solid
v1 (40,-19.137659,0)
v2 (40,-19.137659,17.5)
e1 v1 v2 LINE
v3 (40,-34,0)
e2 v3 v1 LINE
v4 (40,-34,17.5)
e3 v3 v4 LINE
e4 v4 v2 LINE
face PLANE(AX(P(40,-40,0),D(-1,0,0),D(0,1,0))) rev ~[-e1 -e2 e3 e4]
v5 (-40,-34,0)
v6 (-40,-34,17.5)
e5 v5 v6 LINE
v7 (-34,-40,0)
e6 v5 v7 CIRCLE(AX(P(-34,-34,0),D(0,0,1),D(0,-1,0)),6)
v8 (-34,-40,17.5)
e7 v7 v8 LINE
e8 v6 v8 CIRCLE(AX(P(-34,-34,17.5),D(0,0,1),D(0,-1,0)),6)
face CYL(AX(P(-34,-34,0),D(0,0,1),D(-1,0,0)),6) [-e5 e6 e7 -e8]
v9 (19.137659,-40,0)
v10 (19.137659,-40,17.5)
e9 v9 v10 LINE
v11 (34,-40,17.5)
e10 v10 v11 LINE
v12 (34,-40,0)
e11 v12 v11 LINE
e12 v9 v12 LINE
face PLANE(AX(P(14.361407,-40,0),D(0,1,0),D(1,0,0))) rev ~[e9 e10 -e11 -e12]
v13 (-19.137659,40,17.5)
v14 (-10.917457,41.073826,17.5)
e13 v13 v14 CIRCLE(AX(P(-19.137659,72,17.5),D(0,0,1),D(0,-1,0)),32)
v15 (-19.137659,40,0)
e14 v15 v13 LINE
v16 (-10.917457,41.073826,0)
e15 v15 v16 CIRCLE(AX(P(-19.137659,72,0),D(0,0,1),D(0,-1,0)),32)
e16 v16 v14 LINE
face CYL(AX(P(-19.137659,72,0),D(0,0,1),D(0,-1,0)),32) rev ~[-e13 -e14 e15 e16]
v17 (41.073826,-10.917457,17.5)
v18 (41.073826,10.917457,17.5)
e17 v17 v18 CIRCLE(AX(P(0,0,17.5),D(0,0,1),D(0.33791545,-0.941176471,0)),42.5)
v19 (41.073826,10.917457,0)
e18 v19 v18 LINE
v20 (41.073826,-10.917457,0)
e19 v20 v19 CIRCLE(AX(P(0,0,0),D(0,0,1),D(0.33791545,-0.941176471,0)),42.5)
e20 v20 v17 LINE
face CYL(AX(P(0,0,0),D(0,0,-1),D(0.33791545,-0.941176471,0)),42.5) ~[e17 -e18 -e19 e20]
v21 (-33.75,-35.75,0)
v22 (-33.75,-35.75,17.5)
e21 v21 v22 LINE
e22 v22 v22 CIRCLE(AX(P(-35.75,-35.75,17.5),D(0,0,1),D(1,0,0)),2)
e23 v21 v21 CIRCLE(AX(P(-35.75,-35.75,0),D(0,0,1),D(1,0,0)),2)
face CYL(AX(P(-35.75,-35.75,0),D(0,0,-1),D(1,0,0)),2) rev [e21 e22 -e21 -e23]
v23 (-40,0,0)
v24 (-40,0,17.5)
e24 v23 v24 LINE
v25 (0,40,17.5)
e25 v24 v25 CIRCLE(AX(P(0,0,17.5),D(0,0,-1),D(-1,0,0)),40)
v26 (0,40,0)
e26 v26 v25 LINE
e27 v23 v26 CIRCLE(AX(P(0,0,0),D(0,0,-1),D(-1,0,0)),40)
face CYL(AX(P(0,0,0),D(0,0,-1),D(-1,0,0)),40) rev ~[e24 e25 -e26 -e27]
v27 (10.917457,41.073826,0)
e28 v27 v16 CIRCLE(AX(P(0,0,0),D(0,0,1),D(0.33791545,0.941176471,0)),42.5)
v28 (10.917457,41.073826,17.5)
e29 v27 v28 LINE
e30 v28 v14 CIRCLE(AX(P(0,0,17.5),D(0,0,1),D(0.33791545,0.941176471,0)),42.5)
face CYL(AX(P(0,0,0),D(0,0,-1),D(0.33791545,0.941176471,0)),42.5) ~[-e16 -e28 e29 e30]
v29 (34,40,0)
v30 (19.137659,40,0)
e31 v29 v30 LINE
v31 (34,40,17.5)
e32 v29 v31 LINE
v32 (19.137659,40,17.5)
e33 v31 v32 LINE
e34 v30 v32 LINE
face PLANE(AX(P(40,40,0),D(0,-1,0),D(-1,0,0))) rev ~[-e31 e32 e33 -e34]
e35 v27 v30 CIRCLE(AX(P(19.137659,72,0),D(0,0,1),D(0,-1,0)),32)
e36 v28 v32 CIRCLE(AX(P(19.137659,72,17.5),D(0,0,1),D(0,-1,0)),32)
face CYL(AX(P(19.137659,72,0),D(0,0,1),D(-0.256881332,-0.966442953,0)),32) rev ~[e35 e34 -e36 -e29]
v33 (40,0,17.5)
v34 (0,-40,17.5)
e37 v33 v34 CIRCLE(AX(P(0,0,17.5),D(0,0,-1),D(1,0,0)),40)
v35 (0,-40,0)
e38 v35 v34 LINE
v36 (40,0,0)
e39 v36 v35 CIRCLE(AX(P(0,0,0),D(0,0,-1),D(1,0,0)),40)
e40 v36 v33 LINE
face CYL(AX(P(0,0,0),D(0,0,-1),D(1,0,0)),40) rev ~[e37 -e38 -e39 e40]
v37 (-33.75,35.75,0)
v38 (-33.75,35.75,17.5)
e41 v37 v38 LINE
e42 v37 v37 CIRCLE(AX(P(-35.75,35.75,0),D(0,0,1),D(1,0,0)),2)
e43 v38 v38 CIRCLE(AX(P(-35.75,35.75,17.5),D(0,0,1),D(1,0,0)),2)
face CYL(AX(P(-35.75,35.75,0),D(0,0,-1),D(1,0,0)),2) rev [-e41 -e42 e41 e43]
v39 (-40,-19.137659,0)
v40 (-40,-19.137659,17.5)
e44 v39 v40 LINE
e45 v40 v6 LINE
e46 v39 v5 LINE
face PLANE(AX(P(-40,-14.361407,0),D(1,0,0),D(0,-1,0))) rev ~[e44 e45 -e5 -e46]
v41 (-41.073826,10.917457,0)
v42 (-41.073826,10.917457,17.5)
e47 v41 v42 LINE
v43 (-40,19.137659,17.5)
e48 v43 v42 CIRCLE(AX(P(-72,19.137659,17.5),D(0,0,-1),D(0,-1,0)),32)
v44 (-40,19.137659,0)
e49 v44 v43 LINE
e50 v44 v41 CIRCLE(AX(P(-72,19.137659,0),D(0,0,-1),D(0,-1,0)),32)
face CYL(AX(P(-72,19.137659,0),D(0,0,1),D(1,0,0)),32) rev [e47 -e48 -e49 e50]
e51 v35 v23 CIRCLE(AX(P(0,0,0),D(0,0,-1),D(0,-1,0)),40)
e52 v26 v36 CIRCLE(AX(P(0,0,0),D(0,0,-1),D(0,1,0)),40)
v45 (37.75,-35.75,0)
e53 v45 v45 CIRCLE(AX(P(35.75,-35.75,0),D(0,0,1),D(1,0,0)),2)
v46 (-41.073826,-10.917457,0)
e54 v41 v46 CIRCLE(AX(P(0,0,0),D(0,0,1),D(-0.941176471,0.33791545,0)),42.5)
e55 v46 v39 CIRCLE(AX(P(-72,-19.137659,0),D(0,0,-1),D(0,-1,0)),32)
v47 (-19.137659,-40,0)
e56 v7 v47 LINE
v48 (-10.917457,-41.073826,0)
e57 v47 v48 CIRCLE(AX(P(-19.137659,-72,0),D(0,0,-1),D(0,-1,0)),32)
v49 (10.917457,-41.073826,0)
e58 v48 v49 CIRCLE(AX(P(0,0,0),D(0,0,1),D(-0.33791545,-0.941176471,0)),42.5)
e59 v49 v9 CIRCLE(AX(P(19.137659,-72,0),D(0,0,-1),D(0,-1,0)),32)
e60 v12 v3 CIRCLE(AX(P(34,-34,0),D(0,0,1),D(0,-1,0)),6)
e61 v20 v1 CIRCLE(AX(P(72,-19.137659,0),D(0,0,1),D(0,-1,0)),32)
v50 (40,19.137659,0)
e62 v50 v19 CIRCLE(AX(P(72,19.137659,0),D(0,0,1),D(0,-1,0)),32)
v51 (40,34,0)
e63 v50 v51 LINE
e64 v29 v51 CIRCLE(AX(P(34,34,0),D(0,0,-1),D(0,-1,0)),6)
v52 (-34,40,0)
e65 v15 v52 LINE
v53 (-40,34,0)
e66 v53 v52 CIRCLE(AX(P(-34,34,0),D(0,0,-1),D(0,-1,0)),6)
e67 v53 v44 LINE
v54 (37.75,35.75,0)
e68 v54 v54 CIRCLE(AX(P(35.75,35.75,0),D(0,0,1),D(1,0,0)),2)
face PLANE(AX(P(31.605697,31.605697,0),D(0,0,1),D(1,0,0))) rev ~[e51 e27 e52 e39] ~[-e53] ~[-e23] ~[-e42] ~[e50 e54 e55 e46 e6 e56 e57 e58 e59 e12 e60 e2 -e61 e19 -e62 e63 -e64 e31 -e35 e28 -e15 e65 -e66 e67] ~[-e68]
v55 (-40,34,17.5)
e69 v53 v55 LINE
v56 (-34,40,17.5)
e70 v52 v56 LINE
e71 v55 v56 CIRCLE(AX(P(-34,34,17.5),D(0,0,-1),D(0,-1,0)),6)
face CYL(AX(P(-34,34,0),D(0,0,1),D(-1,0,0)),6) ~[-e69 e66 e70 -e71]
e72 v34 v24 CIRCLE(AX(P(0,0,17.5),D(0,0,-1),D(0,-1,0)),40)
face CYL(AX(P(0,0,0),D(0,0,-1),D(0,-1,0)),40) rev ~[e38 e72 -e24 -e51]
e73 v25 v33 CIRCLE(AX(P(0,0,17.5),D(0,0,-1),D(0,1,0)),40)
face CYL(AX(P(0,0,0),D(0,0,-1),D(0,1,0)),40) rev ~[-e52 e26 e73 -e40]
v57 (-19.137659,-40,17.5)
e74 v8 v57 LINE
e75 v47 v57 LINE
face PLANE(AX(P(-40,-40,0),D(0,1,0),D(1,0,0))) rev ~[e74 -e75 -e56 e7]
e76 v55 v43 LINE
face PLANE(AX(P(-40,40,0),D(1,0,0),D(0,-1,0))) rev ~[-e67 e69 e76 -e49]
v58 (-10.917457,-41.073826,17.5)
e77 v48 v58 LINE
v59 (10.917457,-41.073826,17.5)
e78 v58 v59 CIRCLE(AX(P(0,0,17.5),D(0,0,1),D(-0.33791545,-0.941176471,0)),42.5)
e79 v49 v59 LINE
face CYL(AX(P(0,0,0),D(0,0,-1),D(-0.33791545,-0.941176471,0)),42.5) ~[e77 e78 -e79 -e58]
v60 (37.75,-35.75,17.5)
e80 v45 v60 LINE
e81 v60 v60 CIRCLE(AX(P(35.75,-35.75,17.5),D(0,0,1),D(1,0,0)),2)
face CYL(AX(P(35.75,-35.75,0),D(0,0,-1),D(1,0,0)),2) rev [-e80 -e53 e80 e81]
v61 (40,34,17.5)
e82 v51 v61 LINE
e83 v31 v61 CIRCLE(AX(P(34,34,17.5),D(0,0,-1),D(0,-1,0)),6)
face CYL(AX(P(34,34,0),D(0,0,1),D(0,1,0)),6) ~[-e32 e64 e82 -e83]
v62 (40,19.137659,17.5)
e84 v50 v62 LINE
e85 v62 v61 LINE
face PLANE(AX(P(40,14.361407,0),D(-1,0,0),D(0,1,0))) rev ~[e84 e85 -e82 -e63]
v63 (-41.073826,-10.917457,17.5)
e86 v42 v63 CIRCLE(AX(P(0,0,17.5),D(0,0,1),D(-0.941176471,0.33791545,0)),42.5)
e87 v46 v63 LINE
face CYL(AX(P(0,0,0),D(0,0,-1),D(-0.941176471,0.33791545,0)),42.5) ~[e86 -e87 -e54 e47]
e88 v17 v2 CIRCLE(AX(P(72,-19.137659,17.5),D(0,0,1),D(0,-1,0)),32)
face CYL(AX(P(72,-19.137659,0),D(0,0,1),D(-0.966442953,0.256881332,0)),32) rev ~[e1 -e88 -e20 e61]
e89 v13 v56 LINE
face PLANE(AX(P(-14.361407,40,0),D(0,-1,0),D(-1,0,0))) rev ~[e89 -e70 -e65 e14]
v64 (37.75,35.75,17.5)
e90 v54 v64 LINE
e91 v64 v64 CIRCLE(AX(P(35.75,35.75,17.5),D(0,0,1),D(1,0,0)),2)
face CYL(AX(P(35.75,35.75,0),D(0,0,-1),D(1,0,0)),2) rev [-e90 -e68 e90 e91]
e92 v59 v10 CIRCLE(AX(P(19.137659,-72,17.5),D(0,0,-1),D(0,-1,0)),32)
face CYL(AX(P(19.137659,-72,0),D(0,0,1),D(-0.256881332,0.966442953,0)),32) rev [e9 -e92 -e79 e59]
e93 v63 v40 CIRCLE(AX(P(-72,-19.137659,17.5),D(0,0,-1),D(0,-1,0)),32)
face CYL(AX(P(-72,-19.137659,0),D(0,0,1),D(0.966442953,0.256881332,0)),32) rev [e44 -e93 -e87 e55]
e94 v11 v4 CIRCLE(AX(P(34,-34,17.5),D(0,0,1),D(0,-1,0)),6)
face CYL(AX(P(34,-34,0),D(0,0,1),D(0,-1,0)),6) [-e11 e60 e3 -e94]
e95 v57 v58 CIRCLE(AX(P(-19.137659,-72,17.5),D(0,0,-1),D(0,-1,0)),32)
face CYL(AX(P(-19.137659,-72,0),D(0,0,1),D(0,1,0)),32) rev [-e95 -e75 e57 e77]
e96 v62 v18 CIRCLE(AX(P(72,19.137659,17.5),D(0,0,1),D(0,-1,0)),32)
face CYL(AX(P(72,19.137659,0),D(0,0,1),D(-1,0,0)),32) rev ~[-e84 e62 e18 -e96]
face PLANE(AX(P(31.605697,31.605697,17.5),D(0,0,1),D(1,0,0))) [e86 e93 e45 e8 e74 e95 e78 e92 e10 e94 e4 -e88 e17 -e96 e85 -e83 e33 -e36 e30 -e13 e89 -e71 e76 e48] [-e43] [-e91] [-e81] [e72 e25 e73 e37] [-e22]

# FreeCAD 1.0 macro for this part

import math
import FreeCAD as App
import Part
import Sketcher
Q = App.Units.Quantity


def edges_at(feature, points):
    """Names of the edges that pass closest to the given points."""
    edges = feature.Shape.Edges
    near = lambda p: min(range(len(edges)), key=lambda i: edges[i].distToShape(Part.Vertex(*p))[0])
    return sorted({f"Edge{near(p) + 1}" for p in points})

doc = App.newDocument("Part")
params = doc.addObject("Spreadsheet::Sheet", "Params")
for row, (alias, value) in enumerate([
    ("sketch1_diameter", "4 mm"),
    ("sketch1_radius", "40 mm"),
    ("sketch1_radius2", "42.5 mm"),
    ("pad1_length", "17.5 mm"),
    ("fillet_radius", "6 mm"),
    ("fillet2_radius", "32 mm"),
], start=1):
    params.set(f"A{row}", alias)
    params.set(f"B{row}", "=" + value)
    params.setAlias(f"B{row}", alias)

body = doc.addObject("PartDesign::Body", "Body")

sketch1 = body.newObject("Sketcher::SketchObject", "Sketch")
sketch1.AttachmentSupport = (doc.getObject("XY_Plane"), [""])
sketch1.MapMode = "FlatFace"
sketch1.addGeometry([
    Part.ArcOfCircle(Part.Circle(App.Vector(0, 0, 0), App.Vector(0, 0, 1), 42.5), math.radians(160.250077), math.radians(199.749923)),
    Part.LineSegment(App.Vector(-40, -14.361407, 0), App.Vector(-40, -40, 0)),
    Part.LineSegment(App.Vector(-40, -40, 0), App.Vector(-14.361407, -40, 0)),
    Part.ArcOfCircle(Part.Circle(App.Vector(0, 0, 0), App.Vector(0, 0, 1), 42.5), math.radians(-109.749923), math.radians(-70.250077)),
    Part.LineSegment(App.Vector(14.361407, -40, 0), App.Vector(40, -40, 0)),
    Part.LineSegment(App.Vector(40, -40, 0), App.Vector(40, -14.361407, 0)),
    Part.ArcOfCircle(Part.Circle(App.Vector(0, 0, 0), App.Vector(0, 0, 1), 42.5), math.radians(-19.749923), math.radians(19.749923)),
    Part.LineSegment(App.Vector(40, 14.361407, 0), App.Vector(40, 40, 0)),
    Part.LineSegment(App.Vector(40, 40, 0), App.Vector(14.361407, 40, 0)),
    Part.ArcOfCircle(Part.Circle(App.Vector(0, 0, 0), App.Vector(0, 0, 1), 42.5), math.radians(70.250077), math.radians(109.749923)),
    Part.LineSegment(App.Vector(-14.361407, 40, 0), App.Vector(-40, 40, 0)),
    Part.LineSegment(App.Vector(-40, 40, 0), App.Vector(-40, 14.361407, 0)),
    Part.Circle(App.Vector(-35.75, -35.75, 0), App.Vector(0, 0, 1), 2),
    Part.Circle(App.Vector(35.75, -35.75, 0), App.Vector(0, 0, 1), 2),
    Part.Circle(App.Vector(-35.75, 35.75, 0), App.Vector(0, 0, 1), 2),
    Part.ArcOfCircle(Part.Circle(App.Vector(0, 0, 0), App.Vector(0, 0, 1), 40), math.radians(-90), math.radians(0)),
    Part.ArcOfCircle(Part.Circle(App.Vector(0, 0, 0), App.Vector(0, 0, 1), 40), math.radians(180), math.radians(270)),
    Part.ArcOfCircle(Part.Circle(App.Vector(0, 0, 0), App.Vector(0, 0, 1), 40), math.radians(90), math.radians(180)),
    Part.ArcOfCircle(Part.Circle(App.Vector(0, 0, 0), App.Vector(0, 0, 1), 40), math.radians(0), math.radians(90)),
    Part.Circle(App.Vector(35.75, 35.75, 0), App.Vector(0, 0, 1), 2),
], False)
sketch1.addConstraint([
    Sketcher.Constraint("Coincident", 0, 2, 1, 1),
    Sketcher.Constraint("Coincident", 1, 2, 2, 1),
    Sketcher.Constraint("Coincident", 2, 2, 3, 1),
    Sketcher.Constraint("Coincident", 3, 2, 4, 1),
    Sketcher.Constraint("Coincident", 4, 2, 5, 1),
    Sketcher.Constraint("Coincident", 5, 2, 6, 1),
    Sketcher.Constraint("Coincident", 6, 2, 7, 1),
    Sketcher.Constraint("Coincident", 7, 2, 8, 1),
    Sketcher.Constraint("Coincident", 8, 2, 9, 1),
    Sketcher.Constraint("Coincident", 9, 2, 10, 1),
    Sketcher.Constraint("Coincident", 10, 2, 11, 1),
    Sketcher.Constraint("Coincident", 11, 2, 0, 1),
    Sketcher.Constraint("Tangent", 15, 1, 16, 2),
    Sketcher.Constraint("Tangent", 16, 1, 17, 2),
    Sketcher.Constraint("Tangent", 17, 1, 18, 2),
    Sketcher.Constraint("Tangent", 18, 1, 15, 2),
    Sketcher.Constraint("Vertical", 1),
    Sketcher.Constraint("Horizontal", 2),
    Sketcher.Constraint("Horizontal", 4),
    Sketcher.Constraint("Vertical", 5),
    Sketcher.Constraint("Vertical", 7),
    Sketcher.Constraint("Horizontal", 8),
    Sketcher.Constraint("Horizontal", 10),
    Sketcher.Constraint("Vertical", 11),
    Sketcher.Constraint("Coincident", 0, 3, -1, 1),
    Sketcher.Constraint("Coincident", 3, 3, -1, 1),
    Sketcher.Constraint("Coincident", 6, 3, -1, 1),
    Sketcher.Constraint("Coincident", 9, 3, -1, 1),
    Sketcher.Constraint("Coincident", 15, 3, -1, 1),
    Sketcher.Constraint("Equal", 0, 3),
    Sketcher.Constraint("Equal", 3, 6),
    Sketcher.Constraint("Equal", 6, 9),
    Sketcher.Constraint("Equal", 12, 13),
    Sketcher.Constraint("Equal", 13, 14),
    Sketcher.Constraint("Equal", 15, 16),
    Sketcher.Constraint("Equal", 14, 19),
    Sketcher.Constraint("Symmetric", 13, 3, 14, 3, -1, 1),
    Sketcher.Constraint("Symmetric", 12, 3, 19, 3, -1, 1),
    Sketcher.Constraint("Symmetric", 1, 2, 7, 2, -1, 1),
    Sketcher.Constraint("Symmetric", 4, 2, 10, 2, -1, 1),
    Sketcher.Constraint("Symmetric", 12, 3, 13, 3, -2),
    Sketcher.Constraint("Symmetric", 1, 2, 4, 2, -2),
    Sketcher.Constraint("PointOnObject", 15, 1, -2),
    Sketcher.Constraint("PointOnObject", 16, 1, -1),
    Sketcher.Constraint("PointOnObject", 17, 1, -2),
    Sketcher.Constraint("PointOnObject", 18, 1, -1),
    Sketcher.Constraint("Horizontal", 4, 2, 15, 1),
    Sketcher.Constraint("Vertical", 11, 2, 16, 1),
    Sketcher.Constraint("Diameter", 12, Q("4 mm")),
    Sketcher.Constraint("Radius", 15, Q("40 mm")),
    Sketcher.Constraint("Radius", 0, Q("42.5 mm")),
    Sketcher.Constraint("DistanceX", 12, 3, 13, 3, Q("71.5 mm")),
    Sketcher.Constraint("DistanceY", 12, 3, 14, 3, Q("71.5 mm")),
])
sketch1.setExpression("Constraints[48]", "Params.sketch1_diameter")
sketch1.setExpression("Constraints[49]", "Params.sketch1_radius")
sketch1.setExpression("Constraints[50]", "Params.sketch1_radius2")
pad1 = body.newObject("PartDesign::Pad", "Pad")
pad1.Profile = sketch1
pad1.setExpression("Length", "Params.pad1_length")
doc.recompute()

fillet = body.newObject("PartDesign::Fillet", "Fillet")
fillet.Base = (pad1, edges_at(pad1, [
    (-40, -40, 8.75),
    (40, -40, 8.75),
    (-40, 40, 8.75),
    (40, 40, 8.75),
]))
fillet.setExpression("Radius", "Params.fillet_radius")
doc.recompute()

fillet2 = body.newObject("PartDesign::Fillet", "Fillet001")
fillet2.Base = (fillet, edges_at(fillet, [
    (-40, 14.361, 8.75),
    (-40, -14.361, 8.75),
    (-14.361, -40, 8.75),
    (14.361, -40, 8.75),
    (40, -14.361, 8.75),
    (40, 14.361, 8.75),
    (14.361, 40, 8.75),
    (-14.361, 40, 8.75),
]))
fillet2.setExpression("Radius", "Params.fillet2_radius")

doc.recompute()
